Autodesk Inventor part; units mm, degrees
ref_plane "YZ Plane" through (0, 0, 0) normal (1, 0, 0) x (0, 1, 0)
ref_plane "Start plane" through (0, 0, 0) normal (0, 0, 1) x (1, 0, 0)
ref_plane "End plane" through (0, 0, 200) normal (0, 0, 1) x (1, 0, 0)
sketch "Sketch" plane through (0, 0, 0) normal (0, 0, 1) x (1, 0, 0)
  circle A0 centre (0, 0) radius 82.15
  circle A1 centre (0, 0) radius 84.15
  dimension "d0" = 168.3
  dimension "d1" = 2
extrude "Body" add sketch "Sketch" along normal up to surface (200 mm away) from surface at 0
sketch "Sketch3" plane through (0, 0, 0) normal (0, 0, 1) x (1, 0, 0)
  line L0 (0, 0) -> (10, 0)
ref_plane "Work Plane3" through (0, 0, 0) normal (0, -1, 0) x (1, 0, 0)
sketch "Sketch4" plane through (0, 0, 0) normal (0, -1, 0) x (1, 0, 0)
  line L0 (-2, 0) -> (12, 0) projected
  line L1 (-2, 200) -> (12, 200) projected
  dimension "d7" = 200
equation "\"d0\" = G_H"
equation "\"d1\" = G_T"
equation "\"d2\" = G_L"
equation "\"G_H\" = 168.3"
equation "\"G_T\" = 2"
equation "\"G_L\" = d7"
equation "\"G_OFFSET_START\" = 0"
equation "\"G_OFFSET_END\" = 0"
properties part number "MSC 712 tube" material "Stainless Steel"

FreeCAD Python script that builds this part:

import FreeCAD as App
import Part
import Sketcher
Q = App.Units.Quantity

doc = App.newDocument("Part")
body = doc.addObject("PartDesign::Body", "Body")

sketch1 = body.newObject("Sketcher::SketchObject", "Sketch")
sketch1.AttachmentSupport = (doc.getObject("XY_Plane"), [""])
sketch1.MapMode = "FlatFace"
sketch1.addGeometry([
    Part.Circle(App.Vector(0, 0, 0), App.Vector(0, 0, 1), 84),
    Part.Circle(App.Vector(0, 0, 0), App.Vector(0, 0, 1), 82),
], False)
sketch1.addConstraint([
    Sketcher.Constraint("Coincident", 0, 3, -1, 1),
    Sketcher.Constraint("Coincident", 1, 3, -1, 1),
    Sketcher.Constraint("Diameter", 0, Q("168.3 mm")),
    Sketcher.Constraint("Diameter", 1, Q("164.3 mm")),
])
pad1 = body.newObject("PartDesign::Pad", "Pad")
pad1.Profile = sketch1
pad1.Length = 200

doc.recompute()
